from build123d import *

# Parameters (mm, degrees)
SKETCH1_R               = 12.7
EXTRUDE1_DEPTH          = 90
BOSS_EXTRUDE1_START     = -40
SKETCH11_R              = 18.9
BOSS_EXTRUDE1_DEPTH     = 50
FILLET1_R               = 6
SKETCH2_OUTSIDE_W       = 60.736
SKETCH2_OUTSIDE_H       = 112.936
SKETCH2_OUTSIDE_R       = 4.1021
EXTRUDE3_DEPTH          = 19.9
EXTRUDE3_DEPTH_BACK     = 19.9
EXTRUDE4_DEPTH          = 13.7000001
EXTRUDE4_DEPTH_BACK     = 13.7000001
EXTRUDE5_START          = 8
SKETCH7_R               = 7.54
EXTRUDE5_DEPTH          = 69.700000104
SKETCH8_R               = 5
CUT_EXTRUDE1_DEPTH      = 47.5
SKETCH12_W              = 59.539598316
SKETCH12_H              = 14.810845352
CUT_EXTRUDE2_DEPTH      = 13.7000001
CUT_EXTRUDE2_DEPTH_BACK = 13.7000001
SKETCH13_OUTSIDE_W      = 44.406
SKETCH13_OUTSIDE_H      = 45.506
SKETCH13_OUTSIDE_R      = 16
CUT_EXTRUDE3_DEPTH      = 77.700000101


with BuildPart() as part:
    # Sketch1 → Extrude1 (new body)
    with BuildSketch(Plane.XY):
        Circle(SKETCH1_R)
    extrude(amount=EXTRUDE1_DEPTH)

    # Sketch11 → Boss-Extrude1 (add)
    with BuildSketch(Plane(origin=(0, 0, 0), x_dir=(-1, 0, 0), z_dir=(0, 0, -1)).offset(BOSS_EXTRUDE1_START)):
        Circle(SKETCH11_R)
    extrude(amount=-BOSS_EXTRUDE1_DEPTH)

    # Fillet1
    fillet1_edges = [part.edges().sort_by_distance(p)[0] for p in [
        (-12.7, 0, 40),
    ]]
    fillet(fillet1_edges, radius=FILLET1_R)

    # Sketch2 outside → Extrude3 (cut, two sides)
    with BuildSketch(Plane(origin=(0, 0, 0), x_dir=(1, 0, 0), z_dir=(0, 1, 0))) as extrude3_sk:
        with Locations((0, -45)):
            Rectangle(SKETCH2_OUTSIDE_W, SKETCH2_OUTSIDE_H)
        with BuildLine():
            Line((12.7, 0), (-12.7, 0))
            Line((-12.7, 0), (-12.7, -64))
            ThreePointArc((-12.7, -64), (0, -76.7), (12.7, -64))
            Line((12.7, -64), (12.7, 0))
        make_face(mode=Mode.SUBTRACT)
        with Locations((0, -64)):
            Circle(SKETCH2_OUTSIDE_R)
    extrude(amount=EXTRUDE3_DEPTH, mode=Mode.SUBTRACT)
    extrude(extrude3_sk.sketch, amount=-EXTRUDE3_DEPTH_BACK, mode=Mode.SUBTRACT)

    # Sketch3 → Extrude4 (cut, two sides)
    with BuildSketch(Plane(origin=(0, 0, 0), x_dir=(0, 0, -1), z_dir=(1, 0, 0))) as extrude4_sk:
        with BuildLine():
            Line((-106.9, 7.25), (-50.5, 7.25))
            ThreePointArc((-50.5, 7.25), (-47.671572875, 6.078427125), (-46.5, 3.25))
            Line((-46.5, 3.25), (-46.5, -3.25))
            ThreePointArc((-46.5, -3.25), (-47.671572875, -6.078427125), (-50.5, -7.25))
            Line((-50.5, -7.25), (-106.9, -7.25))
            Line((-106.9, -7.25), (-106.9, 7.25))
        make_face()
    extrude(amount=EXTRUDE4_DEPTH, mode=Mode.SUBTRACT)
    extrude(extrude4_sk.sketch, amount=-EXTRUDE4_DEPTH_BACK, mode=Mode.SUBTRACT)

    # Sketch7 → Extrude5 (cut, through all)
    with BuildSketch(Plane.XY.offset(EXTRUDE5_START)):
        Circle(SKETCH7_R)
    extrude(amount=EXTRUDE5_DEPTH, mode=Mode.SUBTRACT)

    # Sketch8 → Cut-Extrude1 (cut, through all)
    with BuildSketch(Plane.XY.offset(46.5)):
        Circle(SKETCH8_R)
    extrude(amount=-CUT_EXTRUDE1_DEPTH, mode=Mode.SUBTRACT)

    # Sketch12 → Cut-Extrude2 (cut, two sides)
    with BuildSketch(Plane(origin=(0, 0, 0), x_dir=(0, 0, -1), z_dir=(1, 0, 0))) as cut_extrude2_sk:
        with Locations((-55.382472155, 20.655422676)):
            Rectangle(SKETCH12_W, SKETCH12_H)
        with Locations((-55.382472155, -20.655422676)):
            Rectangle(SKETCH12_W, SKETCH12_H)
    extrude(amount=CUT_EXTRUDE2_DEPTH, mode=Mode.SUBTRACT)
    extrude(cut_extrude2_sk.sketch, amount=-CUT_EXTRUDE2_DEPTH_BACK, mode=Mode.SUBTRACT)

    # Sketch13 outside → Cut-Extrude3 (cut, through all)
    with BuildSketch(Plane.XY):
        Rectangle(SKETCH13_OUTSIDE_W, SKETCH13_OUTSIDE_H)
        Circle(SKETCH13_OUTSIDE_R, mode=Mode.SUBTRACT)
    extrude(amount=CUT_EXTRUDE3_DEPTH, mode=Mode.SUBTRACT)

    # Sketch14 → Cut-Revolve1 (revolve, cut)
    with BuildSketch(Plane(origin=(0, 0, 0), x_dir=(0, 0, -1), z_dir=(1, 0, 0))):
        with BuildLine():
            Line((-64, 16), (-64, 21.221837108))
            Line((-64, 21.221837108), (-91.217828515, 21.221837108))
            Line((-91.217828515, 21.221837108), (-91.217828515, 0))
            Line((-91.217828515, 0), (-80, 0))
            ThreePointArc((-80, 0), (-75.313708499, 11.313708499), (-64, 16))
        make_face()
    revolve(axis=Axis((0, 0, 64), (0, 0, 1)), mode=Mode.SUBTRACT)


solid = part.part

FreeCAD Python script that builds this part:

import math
import FreeCAD as App
import Part
import Sketcher

V = App.Vector
Q = App.Units.Quantity


def edges_at(feature, points):
    """Names of the edges that pass closest to the given points."""
    edges = feature.Shape.Edges
    near = lambda p: min(range(len(edges)), key=lambda i: edges[i].distToShape(Part.Vertex(*p))[0])
    return sorted({f"Edge{near(p) + 1}" for p in points})


def add_polygon(sketch, points):
    """Adds a closed chain of lines whose ends are joined by coincident constraints."""
    first, n = sketch.GeometryCount, len(points)
    for a, b in zip(points, points[1:] + points[:1]):
        sketch.addGeometry(Part.LineSegment(App.Vector(*a, 0), App.Vector(*b, 0)), False)
    for i in range(n):
        sketch.addConstraint(Sketcher.Constraint("Coincident", first + i, 2, first + (i + 1) % n, 1))

doc = App.newDocument("Part")
body = doc.addObject("PartDesign::Body", "Body")

sketch1 = doc.addObject("Sketcher::SketchObject", "Sketch")
body.addObject(sketch1)
sketch1.AttachmentSupport = (doc.XY_Plane, [""])
sketch1.MapMode = "FlatFace"
sketch1.addGeometry(Part.Circle(V(0, 0, 0), V(0, 0, 1), 13), False)
sketch1.addConstraint([
    Sketcher.Constraint("Coincident", 0, 3, -1, 1),
    Sketcher.Constraint("Diameter", 0, Q("25.4 mm")),
])
pad1 = doc.addObject("PartDesign::Pad", "Pad")
body.addObject(pad1)
pad1.Profile = sketch1
pad1.Length = 90

sketch2 = doc.addObject("Sketcher::SketchObject", "Sketch001")
body.addObject(sketch2)
sketch2.AttachmentSupport = (doc.XY_Plane, [""])
sketch2.MapMode = "FlatFace"
sketch2.AttachmentOffset = App.Placement(V(0, 0, 40), App.Rotation())
sketch2.addGeometry(Part.Circle(V(0, 0, 0), V(0, 0, 1), 19), False)
sketch2.addConstraint([
    Sketcher.Constraint("Coincident", 0, 3, -1, 1),
    Sketcher.Constraint("Diameter", 0, Q("37.8 mm")),
])
pad2 = doc.addObject("PartDesign::Pad", "Pad001")
body.addObject(pad2)
pad2.Profile = sketch2
pad2.Length = 50
doc.recompute()

fillet = doc.addObject("PartDesign::Fillet", "Fillet")
body.addObject(fillet)
fillet.Base = (pad2, edges_at(pad2, [(-12.7, 0, 40)]))
fillet.Radius = 6

sketch3 = doc.addObject("Sketcher::SketchObject", "Sketch002")
body.addObject(sketch3)
sketch3.AttachmentSupport = (doc.XZ_Plane, [""])
sketch3.MapMode = "FlatFace"
add_polygon(sketch3, [(-30.4, -11.5), (-30.4, 101.5), (30.4, 101.5), (30.4, -11.5)])
sketch3.addGeometry(Part.LineSegment(V(-12.7, 0, 0), V(12.7, 0, 0)), False)
sketch3.addGeometry(Part.LineSegment(V(12.7, 0, 0), V(12.7, 64, 0)), False)
sketch3.addGeometry(Part.ArcOfCircle(Part.Circle(V(0, 64, 0), V(0, 0, 1), 12.7), math.radians(0), math.radians(180)), False)
sketch3.addGeometry(Part.LineSegment(V(-12.7, 64, 0), V(-12.7, 0, 0)), False)
sketch3.addGeometry(Part.Circle(V(0, 64, 0), V(0, 0, 1), 4.1), False)
sketch3.addConstraint([
    Sketcher.Constraint("Coincident", 4, 2, 5, 1),
    Sketcher.Constraint("Tangent", 5, 2, 6, 1),
    Sketcher.Constraint("Tangent", 6, 2, 7, 1),
    Sketcher.Constraint("Coincident", 7, 2, 4, 1),
    Sketcher.Constraint("Vertical", 0),
    Sketcher.Constraint("Horizontal", 1),
    Sketcher.Constraint("Vertical", 2),
    Sketcher.Constraint("Horizontal", 3),
    Sketcher.Constraint("Horizontal", 4),
    Sketcher.Constraint("Vertical", 5),
    Sketcher.Constraint("Vertical", 7),
    Sketcher.Constraint("Coincident", 8, 3, 6, 3),
    Sketcher.Constraint("Symmetric", 4, 2, 7, 2, -1, 1),
    Sketcher.Constraint("Radius", 6, Q("12.7 mm")),
    Sketcher.Constraint("DistanceY", 5, 1, 5, 2, Q("64 mm")),
    Sketcher.Constraint("Diameter", 8, Q("8.2042 mm")),
    Sketcher.Constraint("DistanceX", 1, 1, 1, 2, Q("60.736 mm")),
    Sketcher.Constraint("DistanceY", 0, 1, 0, 2, Q("112.936 mm")),
    Sketcher.Constraint("DistanceX", 0, 2, -1, 1, Q("30.368 mm")),
    Sketcher.Constraint("DistanceY", -1, 1, 0, 2, Q("101.468 mm")),
])
pocket1 = doc.addObject("PartDesign::Pocket", "Pocket")
body.addObject(pocket1)
pocket1.Profile = sketch3
pocket1.Type = "ThroughAll"
pocket1.Midplane = True

sketch4 = doc.addObject("Sketcher::SketchObject", "Sketch003")
body.addObject(sketch4)
sketch4.AttachmentSupport = (doc.YZ_Plane, [""])
sketch4.MapMode = "FlatFace"
sketch4.addGeometry([
    Part.LineSegment(V(7.2, 50.5, 0), V(7.2, 106.9, 0)),
    Part.LineSegment(V(7.2, 106.9, 0), V(-7.2, 106.9, 0)),
    Part.LineSegment(V(-7.2, 106.9, 0), V(-7.2, 50.5, 0)),
    Part.ArcOfCircle(Part.Circle(V(-3.3, 50.5, 0), V(0, 0, 1), 4), math.radians(180), math.radians(270)),
    Part.LineSegment(V(-3.2, 46.5, 0), V(3.2, 46.5, 0)),
    Part.ArcOfCircle(Part.Circle(V(3.3, 50.5, 0), V(0, 0, 1), 4), math.radians(-90), math.radians(0)),
], False)
sketch4.addConstraint([
    Sketcher.Constraint("Coincident", 0, 2, 1, 1),
    Sketcher.Constraint("Coincident", 1, 2, 2, 1),
    Sketcher.Constraint("Tangent", 2, 2, 3, 1),
    Sketcher.Constraint("Tangent", 3, 2, 4, 1),
    Sketcher.Constraint("Tangent", 4, 2, 5, 1),
    Sketcher.Constraint("Tangent", 5, 2, 0, 1),
    Sketcher.Constraint("Vertical", 0),
    Sketcher.Constraint("Horizontal", 1),
    Sketcher.Constraint("Vertical", 2),
    Sketcher.Constraint("Horizontal", 4),
    Sketcher.Constraint("Equal", 3, 5),
    Sketcher.Constraint("Radius", 3, Q("4 mm")),
    Sketcher.Constraint("DistanceX", 1, 2, 1, 1, Q("14.5 mm")),
    Sketcher.Constraint("DistanceY", 0, 1, 0, 2, Q("56.4 mm")),
    Sketcher.Constraint("DistanceY", -1, 1, 3, 3, Q("50.5 mm")),
    Sketcher.Constraint("DistanceX", 3, 3, -1, 1, Q("3.25 mm")),
])
pocket2 = doc.addObject("PartDesign::Pocket", "Pocket001")
body.addObject(pocket2)
pocket2.Profile = sketch4
pocket2.Type = "ThroughAll"
pocket2.Midplane = True

sketch5 = doc.addObject("Sketcher::SketchObject", "Sketch004")
body.addObject(sketch5)
sketch5.AttachmentSupport = (doc.XY_Plane, [""])
sketch5.MapMode = "FlatFace"
sketch5.AttachmentOffset = App.Placement(V(0, 0, 8), App.Rotation())
sketch5.addGeometry(Part.Circle(V(0, 0, 0), V(0, 0, 1), 8), False)
sketch5.addConstraint([
    Sketcher.Constraint("Coincident", 0, 3, -1, 1),
    Sketcher.Constraint("Diameter", 0, Q("15.08 mm")),
])
pocket3 = doc.addObject("PartDesign::Pocket", "Pocket002")
body.addObject(pocket3)
pocket3.Profile = sketch5
pocket3.Type = "ThroughAll"
pocket3.Reversed = True

sketch6 = doc.addObject("Sketcher::SketchObject", "Sketch005")
body.addObject(sketch6)
sketch6.AttachmentSupport = (doc.XY_Plane, [""])
sketch6.MapMode = "FlatFace"
sketch6.AttachmentOffset = App.Placement(V(0, 0, 46.5), App.Rotation())
sketch6.addGeometry(Part.Circle(V(0, 0, 0), V(0, 0, 1), 5), False)
sketch6.addConstraint([
    Sketcher.Constraint("Coincident", 0, 3, -1, 1),
    Sketcher.Constraint("Diameter", 0, Q("10 mm")),
])
pocket4 = doc.addObject("PartDesign::Pocket", "Pocket003")
body.addObject(pocket4)
pocket4.Profile = sketch6
pocket4.Type = "ThroughAll"

sketch7 = doc.addObject("Sketcher::SketchObject", "Sketch006")
body.addObject(sketch7)
sketch7.AttachmentSupport = (doc.YZ_Plane, [""])
sketch7.MapMode = "FlatFace"
add_polygon(sketch7, [(28, 85), (13, 85), (13, 26), (28, 26)])
add_polygon(sketch7, [(-13, 85), (-28, 85), (-28, 26), (-13, 26)])
sketch7.addConstraint([
    Sketcher.Constraint("Horizontal", 0),
    Sketcher.Constraint("Vertical", 1),
    Sketcher.Constraint("Horizontal", 2),
    Sketcher.Constraint("Vertical", 3),
    Sketcher.Constraint("Horizontal", 4),
    Sketcher.Constraint("Vertical", 5),
    Sketcher.Constraint("Horizontal", 6),
    Sketcher.Constraint("Vertical", 7),
    Sketcher.Constraint("Symmetric", 3, 2, 4, 2, -2),
    Sketcher.Constraint("Symmetric", 1, 2, 6, 2, -2),
    Sketcher.Constraint("DistanceX", 6, 2, 1, 2, Q("26.5 mm")),
    Sketcher.Constraint("DistanceY", 1, 2, 1, 1, Q("59.539598 mm")),
    Sketcher.Constraint("DistanceX", 0, 2, 0, 1, Q("14.810845 mm")),
    Sketcher.Constraint("DistanceY", -1, 1, 0, 2, Q("85.152271 mm")),
])
pocket5 = doc.addObject("PartDesign::Pocket", "Pocket004")
body.addObject(pocket5)
pocket5.Profile = sketch7
pocket5.Type = "ThroughAll"
pocket5.Midplane = True

sketch8 = doc.addObject("Sketcher::SketchObject", "Sketch007")
body.addObject(sketch8)
sketch8.AttachmentSupport = (doc.XY_Plane, [""])
sketch8.MapMode = "FlatFace"
add_polygon(sketch8, [(-22, 23), (-22, -23), (22, -23), (22, 23)])
sketch8.addGeometry(Part.Circle(V(0, 0, 0), V(0, 0, 1), 16), False)
sketch8.addConstraint([
    Sketcher.Constraint("Vertical", 0),
    Sketcher.Constraint("Horizontal", 1),
    Sketcher.Constraint("Vertical", 2),
    Sketcher.Constraint("Horizontal", 3),
    Sketcher.Constraint("Coincident", 4, 3, -1, 1),
    Sketcher.Constraint("Symmetric", 0, 2, 2, 2, -1, 1),
    Sketcher.Constraint("Diameter", 4, Q("32 mm")),
    Sketcher.Constraint("DistanceX", 1, 1, 1, 2, Q("44.406 mm")),
    Sketcher.Constraint("DistanceY", 0, 2, 0, 1, Q("45.506 mm")),
])
pocket6 = doc.addObject("PartDesign::Pocket", "Pocket005")
body.addObject(pocket6)
pocket6.Profile = sketch8
pocket6.Type = "ThroughAll"
pocket6.Reversed = True

sketch9 = doc.addObject("Sketcher::SketchObject", "Sketch008")
body.addObject(sketch9)
sketch9.AttachmentSupport = (doc.YZ_Plane, [""])
sketch9.MapMode = "FlatFace"
sketch9.addGeometry([
    Part.LineSegment(V(16, 64, 0), V(21, 64, 0)),
    Part.LineSegment(V(21, 64, 0), V(21, 91, 0)),
    Part.LineSegment(V(21, 91, 0), V(0, 91, 0)),
    Part.LineSegment(V(0, 91, 0), V(0, 80, 0)),
    Part.ArcOfCircle(Part.Circle(V(0, 64, 0), V(0, 0, 1), 16), math.radians(0), math.radians(90)),
], False)
sketch9.addConstraint([
    Sketcher.Constraint("Coincident", 0, 2, 1, 1),
    Sketcher.Constraint("Coincident", 1, 2, 2, 1),
    Sketcher.Constraint("Coincident", 2, 2, 3, 1),
    Sketcher.Constraint("Coincident", 3, 2, 4, 2),
    Sketcher.Constraint("Coincident", 4, 1, 0, 1),
    Sketcher.Constraint("Horizontal", 0),
    Sketcher.Constraint("Vertical", 1),
    Sketcher.Constraint("Horizontal", 2),
    Sketcher.Constraint("Vertical", 3),
    Sketcher.Constraint("PointOnObject", 4, 3, -2),
    Sketcher.Constraint("PointOnObject", 2, 2, -2),
    Sketcher.Constraint("Horizontal", 4, 3, 0, 2),
    Sketcher.Constraint("Radius", 4, Q("16 mm")),
    Sketcher.Constraint("DistanceY", -1, 1, 4, 3, Q("64 mm")),
    Sketcher.Constraint("DistanceY", 1, 1, 1, 2, Q("27.217829 mm")),
    Sketcher.Constraint("DistanceX", 0, 1, 0, 2, Q("5.221837 mm")),
])
groove = doc.addObject("PartDesign::Groove", "Groove")
body.addObject(groove)
groove.Profile = sketch9
groove.ReferenceAxis = (sketch9, ["V_Axis"])
groove.Angle = 360

doc.recompute()
